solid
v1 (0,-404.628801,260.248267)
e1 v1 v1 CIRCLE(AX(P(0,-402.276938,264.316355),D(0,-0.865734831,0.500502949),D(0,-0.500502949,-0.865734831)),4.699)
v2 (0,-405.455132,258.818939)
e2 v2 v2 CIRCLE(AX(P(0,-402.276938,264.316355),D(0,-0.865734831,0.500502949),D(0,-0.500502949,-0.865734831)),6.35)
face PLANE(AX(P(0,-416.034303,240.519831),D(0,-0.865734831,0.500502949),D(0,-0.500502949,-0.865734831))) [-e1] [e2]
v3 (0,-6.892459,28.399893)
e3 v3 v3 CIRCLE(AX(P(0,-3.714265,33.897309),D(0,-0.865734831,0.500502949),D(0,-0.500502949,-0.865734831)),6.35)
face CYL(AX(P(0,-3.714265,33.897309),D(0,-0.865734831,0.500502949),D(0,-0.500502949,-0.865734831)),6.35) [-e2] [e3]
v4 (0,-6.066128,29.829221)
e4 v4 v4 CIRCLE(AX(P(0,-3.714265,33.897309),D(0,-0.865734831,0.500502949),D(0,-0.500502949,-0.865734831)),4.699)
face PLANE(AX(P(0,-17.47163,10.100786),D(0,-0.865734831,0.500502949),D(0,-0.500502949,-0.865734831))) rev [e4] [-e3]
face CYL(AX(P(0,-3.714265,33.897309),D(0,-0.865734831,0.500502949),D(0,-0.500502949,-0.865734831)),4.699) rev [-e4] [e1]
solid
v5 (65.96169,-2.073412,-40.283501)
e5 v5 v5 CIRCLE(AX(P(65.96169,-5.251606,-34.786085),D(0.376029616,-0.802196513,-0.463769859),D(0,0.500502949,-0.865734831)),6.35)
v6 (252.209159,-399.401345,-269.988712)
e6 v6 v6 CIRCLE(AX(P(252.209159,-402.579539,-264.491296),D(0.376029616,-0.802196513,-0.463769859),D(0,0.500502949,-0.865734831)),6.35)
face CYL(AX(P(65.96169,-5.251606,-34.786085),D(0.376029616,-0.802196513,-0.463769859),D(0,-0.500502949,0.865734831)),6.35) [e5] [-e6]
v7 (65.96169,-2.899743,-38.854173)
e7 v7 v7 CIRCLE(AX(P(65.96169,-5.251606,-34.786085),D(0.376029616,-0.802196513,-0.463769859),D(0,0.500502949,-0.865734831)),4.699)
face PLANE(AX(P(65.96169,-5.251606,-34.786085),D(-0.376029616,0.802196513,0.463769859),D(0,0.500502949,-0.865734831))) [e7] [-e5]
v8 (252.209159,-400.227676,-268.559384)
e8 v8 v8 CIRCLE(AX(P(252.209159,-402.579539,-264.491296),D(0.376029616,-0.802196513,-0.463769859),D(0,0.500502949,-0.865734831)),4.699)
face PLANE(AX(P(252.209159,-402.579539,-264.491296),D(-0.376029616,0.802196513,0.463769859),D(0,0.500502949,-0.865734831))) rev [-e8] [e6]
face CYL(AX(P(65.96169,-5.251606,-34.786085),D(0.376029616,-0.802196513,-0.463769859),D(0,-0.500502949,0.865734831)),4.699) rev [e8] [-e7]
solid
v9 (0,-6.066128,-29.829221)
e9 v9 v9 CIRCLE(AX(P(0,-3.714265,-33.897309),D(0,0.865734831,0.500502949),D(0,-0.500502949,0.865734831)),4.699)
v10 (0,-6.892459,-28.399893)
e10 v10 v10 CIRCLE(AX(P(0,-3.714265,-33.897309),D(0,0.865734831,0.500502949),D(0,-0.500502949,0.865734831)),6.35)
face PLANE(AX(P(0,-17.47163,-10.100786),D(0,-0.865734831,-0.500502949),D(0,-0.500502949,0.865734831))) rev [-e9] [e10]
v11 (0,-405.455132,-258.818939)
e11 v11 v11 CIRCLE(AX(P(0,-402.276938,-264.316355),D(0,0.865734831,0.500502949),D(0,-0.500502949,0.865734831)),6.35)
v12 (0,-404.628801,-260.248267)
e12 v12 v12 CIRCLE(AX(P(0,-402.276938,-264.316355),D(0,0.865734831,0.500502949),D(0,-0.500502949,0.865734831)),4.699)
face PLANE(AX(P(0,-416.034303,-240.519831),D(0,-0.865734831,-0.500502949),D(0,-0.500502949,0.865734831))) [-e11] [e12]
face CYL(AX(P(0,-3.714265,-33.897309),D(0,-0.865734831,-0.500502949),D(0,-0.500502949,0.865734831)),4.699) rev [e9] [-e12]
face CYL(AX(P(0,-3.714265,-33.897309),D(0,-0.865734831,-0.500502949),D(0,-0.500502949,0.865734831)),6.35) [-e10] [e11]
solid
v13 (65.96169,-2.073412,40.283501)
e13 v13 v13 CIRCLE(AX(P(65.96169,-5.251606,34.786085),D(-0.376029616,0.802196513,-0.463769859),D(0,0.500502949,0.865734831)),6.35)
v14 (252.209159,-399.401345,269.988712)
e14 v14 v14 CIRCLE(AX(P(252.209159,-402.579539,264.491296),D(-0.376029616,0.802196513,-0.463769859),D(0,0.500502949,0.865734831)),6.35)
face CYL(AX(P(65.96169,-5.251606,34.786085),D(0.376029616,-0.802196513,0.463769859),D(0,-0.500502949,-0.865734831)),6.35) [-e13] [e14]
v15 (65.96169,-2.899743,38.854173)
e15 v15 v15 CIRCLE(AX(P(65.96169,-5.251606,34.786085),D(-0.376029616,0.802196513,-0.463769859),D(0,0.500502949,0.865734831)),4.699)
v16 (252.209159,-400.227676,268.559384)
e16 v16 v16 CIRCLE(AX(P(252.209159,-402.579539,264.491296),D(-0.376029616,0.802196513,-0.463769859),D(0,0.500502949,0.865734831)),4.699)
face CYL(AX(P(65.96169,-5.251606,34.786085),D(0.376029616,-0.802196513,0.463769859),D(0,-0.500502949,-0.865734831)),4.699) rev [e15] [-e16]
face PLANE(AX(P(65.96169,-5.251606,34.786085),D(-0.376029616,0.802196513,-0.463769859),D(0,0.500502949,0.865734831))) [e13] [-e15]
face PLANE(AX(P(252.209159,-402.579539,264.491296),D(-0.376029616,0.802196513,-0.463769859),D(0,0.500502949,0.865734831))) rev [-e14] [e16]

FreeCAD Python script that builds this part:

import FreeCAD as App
import Part
import Sketcher
Q = App.Units.Quantity

doc = App.newDocument("Part")
body = doc.addObject("PartDesign::Body", "Body")

# Sketch on an angled plane
sketch1 = doc.addObject("Sketcher::SketchObject", "Sketch")
body.addObject(sketch1)
sketch1.Placement = App.Placement(App.Vector(0, -402.276938, 264.316355), App.Rotation(App.Vector(-1, 0, 0), App.Vector(0, -0.500502949, -0.865734831), App.Vector(0, -0.865734831, 0.500502949), "ZXY"))
sketch1.addGeometry([
    Part.Circle(App.Vector(0, 0, 0), App.Vector(0, 0, 1), 6.35),
    Part.Circle(App.Vector(0, 0, 0), App.Vector(0, 0, 1), 4.699),
], False)
sketch1.addConstraint([
    Sketcher.Constraint("Coincident", 0, 3, -1, 1),
    Sketcher.Constraint("Coincident", 1, 3, -1, 1),
    Sketcher.Constraint("Diameter", 0, Q("0.5 in")),
    Sketcher.Constraint("Diameter", 1, Q("0.37 in")),
])
pad1 = doc.addObject("PartDesign::Pad", "Pad")
body.addObject(pad1)
pad1.Profile = sketch1
pad1.Length = Q("18.125 in")
pad1.Reversed = True
body2 = doc.addObject("PartDesign::Body", "Body001")

# Sketch on an angled plane
sketch2 = doc.addObject("Sketcher::SketchObject", "Sketch001")
body2.addObject(sketch2)
sketch2.Placement = App.Placement(App.Vector(252.209159, -402.579539, 264.491296), App.Rotation(App.Vector(0.926607645, 0.325541936, -0.188203932), App.Vector(0, -0.500502949, -0.865734831), App.Vector(-0.376029616, 0.802196513, -0.463769859), "ZXY"))
sketch2.addGeometry([
    Part.Circle(App.Vector(0, 0, 0), App.Vector(0, 0, 1), 6.35),
    Part.Circle(App.Vector(0, 0, 0), App.Vector(0, 0, 1), 4.699),
], False)
sketch2.addConstraint([
    Sketcher.Constraint("Coincident", 0, 3, -1, 1),
    Sketcher.Constraint("Coincident", 1, 3, -1, 1),
    Sketcher.Constraint("Diameter", 0, Q("0.5 in")),
    Sketcher.Constraint("Diameter", 1, Q("0.37 in")),
])
pad2 = doc.addObject("PartDesign::Pad", "Pad001")
body2.addObject(pad2)
pad2.Profile = sketch2
pad2.Length = Q("19.5 in")
body3 = doc.addObject("PartDesign::Body", "Body002")
doc.recompute()

mirroring = doc.addObject("Part::Mirroring", "Mirroring")
mirroring.Source = body
mirroring.Base = App.Vector(0, 0, 0)
mirroring.Normal = App.Vector(0, 0, 1)
body3.BaseFeature = mirroring
doc.recompute()
body4 = doc.addObject("PartDesign::Body", "Body003")
doc.recompute()

mirroring2 = doc.addObject("Part::Mirroring", "Mirroring001")
mirroring2.Source = body2
mirroring2.Base = App.Vector(0, 0, 0)
mirroring2.Normal = App.Vector(0, 0, 1)
body4.BaseFeature = mirroring2
doc.recompute()
mirroring.Visibility = False
mirroring2.Visibility = False

doc.recompute()
